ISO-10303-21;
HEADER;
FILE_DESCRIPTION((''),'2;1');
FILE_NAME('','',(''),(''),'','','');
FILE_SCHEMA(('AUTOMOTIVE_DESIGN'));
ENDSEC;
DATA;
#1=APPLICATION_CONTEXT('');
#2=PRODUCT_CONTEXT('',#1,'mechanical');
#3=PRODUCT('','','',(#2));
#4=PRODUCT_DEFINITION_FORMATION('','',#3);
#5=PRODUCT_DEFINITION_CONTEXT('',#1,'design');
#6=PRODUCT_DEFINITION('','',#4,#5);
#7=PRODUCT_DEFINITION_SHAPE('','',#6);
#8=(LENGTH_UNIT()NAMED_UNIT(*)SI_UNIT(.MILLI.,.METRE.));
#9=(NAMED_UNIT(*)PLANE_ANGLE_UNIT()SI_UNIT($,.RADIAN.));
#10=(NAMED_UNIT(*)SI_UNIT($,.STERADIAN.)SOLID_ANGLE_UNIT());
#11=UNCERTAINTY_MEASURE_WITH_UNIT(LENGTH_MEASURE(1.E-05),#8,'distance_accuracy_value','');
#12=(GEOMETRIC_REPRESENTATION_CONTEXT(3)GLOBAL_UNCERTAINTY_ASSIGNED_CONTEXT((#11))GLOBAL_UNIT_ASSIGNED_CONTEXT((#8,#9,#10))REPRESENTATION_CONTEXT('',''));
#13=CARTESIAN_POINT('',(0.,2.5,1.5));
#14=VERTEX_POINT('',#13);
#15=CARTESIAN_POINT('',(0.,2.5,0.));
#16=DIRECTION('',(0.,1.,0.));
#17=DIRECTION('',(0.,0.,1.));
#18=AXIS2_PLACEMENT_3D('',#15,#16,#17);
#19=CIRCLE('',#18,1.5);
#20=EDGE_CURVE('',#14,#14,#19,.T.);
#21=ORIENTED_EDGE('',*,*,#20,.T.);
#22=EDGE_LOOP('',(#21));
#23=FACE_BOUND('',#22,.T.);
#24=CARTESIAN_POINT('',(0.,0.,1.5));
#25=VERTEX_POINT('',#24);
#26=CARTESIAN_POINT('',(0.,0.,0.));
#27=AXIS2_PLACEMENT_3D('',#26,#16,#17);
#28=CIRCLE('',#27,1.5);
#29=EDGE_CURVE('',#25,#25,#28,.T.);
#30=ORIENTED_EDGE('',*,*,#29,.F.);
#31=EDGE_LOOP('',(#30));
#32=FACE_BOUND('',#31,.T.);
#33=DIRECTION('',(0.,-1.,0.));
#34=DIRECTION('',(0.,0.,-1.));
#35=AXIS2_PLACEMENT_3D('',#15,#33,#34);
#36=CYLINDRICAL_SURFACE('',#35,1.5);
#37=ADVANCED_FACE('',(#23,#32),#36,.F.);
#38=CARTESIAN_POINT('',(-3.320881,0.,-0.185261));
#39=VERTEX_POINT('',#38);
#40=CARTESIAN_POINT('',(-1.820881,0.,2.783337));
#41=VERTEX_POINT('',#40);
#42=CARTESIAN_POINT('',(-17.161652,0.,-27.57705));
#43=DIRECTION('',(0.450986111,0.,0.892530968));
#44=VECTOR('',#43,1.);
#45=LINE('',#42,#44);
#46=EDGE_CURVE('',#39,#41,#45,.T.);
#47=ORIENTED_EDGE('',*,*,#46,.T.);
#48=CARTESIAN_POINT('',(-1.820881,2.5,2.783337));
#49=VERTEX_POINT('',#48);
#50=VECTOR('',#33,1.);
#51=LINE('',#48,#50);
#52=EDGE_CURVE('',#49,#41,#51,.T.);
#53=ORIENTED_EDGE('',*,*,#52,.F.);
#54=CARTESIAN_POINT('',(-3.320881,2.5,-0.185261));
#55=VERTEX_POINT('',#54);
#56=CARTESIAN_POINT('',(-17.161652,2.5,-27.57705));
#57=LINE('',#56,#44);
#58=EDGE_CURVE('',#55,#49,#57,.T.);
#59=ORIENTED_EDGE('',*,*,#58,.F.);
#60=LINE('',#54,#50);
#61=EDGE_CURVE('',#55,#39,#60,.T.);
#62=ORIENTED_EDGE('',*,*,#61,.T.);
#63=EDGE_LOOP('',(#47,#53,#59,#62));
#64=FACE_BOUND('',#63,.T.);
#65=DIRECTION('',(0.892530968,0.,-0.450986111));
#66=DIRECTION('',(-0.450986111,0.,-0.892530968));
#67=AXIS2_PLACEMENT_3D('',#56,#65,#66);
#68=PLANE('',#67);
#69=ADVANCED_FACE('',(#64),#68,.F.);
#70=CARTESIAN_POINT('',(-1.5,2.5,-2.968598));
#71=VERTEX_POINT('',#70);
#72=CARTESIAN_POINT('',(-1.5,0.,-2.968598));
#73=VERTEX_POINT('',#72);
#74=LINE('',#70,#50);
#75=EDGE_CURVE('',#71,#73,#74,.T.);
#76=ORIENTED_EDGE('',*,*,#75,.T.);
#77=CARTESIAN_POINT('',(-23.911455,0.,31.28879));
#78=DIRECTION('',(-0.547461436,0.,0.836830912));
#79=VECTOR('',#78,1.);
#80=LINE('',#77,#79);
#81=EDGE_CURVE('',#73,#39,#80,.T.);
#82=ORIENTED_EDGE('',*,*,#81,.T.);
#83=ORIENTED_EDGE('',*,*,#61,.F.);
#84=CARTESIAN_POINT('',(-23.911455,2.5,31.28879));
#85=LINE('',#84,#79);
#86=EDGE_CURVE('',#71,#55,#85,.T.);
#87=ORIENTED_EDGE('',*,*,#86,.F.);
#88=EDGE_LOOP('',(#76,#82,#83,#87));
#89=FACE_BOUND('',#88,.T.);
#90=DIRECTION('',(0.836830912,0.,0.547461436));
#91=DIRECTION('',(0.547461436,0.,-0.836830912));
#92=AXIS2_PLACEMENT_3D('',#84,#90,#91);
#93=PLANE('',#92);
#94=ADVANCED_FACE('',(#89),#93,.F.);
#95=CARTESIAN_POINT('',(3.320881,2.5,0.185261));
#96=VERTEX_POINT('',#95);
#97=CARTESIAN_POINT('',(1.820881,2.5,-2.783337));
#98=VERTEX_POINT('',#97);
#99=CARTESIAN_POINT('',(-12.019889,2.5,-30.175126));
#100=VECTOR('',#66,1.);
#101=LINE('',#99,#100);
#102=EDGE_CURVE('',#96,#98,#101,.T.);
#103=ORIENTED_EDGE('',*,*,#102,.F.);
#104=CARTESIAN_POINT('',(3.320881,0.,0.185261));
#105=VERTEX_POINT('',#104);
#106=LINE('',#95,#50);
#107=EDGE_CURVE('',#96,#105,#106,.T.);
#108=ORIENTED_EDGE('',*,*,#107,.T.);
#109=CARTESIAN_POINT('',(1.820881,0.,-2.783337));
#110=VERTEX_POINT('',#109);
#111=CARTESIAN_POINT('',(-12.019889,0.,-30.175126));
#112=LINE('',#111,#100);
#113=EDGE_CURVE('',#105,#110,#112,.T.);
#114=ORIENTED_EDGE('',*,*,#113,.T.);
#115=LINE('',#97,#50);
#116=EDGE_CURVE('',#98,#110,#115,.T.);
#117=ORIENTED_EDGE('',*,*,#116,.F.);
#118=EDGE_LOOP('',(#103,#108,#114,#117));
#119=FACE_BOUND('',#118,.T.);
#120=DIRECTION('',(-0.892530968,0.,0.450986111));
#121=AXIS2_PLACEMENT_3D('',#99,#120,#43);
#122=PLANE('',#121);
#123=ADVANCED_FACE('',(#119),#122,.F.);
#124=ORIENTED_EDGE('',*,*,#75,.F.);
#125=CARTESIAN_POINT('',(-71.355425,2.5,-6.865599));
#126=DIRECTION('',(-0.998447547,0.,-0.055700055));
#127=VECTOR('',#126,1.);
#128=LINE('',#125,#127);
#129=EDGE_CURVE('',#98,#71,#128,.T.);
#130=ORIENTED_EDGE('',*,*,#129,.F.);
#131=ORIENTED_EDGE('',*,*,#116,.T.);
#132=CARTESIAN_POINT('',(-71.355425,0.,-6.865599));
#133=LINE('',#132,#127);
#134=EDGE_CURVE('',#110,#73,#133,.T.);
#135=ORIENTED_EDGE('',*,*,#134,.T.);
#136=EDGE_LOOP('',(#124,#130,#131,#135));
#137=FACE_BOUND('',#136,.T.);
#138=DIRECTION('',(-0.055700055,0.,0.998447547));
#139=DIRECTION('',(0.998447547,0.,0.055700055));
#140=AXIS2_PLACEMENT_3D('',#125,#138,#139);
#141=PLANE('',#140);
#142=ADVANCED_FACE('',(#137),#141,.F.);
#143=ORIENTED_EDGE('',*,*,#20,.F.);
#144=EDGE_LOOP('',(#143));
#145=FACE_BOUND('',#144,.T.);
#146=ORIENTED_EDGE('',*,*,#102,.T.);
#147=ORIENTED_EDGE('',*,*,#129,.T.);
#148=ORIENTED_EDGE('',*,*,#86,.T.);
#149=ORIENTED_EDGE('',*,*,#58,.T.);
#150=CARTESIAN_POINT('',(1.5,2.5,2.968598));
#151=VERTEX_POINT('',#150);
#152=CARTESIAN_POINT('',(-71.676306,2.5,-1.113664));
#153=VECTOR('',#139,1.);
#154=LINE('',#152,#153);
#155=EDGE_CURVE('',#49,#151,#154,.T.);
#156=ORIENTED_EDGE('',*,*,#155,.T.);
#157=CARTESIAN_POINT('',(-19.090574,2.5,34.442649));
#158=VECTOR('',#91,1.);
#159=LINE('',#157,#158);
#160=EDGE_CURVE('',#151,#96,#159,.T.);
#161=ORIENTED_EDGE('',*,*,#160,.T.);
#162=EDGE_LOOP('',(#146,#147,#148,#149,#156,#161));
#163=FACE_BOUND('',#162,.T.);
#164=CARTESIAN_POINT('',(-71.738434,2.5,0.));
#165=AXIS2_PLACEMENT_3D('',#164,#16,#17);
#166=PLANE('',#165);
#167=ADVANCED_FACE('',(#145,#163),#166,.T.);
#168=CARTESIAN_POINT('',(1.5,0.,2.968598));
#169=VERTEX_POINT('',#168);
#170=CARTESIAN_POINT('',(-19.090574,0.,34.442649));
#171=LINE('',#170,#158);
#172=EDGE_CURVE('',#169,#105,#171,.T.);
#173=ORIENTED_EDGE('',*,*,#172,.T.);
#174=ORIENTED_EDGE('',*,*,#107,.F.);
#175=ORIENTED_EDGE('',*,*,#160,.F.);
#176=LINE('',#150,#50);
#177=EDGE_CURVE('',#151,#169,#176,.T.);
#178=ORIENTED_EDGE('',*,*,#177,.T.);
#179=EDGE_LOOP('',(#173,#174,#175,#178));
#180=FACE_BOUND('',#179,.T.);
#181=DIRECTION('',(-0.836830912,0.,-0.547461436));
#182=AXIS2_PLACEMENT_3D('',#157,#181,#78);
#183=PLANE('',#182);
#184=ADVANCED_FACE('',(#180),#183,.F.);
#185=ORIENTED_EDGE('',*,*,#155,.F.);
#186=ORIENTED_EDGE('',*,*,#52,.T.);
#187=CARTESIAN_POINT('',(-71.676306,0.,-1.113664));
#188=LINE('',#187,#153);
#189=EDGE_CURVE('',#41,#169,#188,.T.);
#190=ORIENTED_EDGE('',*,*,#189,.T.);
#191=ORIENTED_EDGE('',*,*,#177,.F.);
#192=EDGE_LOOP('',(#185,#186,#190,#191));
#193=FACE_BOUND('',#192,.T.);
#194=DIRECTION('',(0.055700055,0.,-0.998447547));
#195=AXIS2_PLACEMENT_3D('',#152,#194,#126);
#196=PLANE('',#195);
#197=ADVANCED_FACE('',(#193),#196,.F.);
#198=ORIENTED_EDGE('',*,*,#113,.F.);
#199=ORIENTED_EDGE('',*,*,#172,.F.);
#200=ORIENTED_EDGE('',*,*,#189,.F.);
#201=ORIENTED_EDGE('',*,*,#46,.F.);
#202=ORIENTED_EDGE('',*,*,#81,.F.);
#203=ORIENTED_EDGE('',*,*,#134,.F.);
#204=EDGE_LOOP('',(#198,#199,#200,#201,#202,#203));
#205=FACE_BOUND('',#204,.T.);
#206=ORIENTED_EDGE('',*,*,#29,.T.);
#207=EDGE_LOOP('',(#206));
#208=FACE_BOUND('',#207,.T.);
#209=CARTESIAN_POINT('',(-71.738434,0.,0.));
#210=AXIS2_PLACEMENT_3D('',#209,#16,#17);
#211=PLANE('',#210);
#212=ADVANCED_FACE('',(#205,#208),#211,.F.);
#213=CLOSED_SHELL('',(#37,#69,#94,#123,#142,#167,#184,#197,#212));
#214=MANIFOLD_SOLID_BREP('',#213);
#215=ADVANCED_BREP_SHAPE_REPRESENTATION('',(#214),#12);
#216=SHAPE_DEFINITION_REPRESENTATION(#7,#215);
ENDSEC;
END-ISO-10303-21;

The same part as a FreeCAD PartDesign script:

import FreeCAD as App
import Part
import Sketcher
Q = App.Units.Quantity

doc = App.newDocument("Part")
body = doc.addObject("PartDesign::Body", "Body")

# Sketch on XZ plane
sketch1 = body.newObject("Sketcher::SketchObject", "Sketch")
sketch1.AttachmentSupport = (doc.getObject("XZ_Plane"), [""])
sketch1.MapMode = "FlatFace"
sketch1.addGeometry([
    Part.LineSegment(App.Vector(-3.3, -0.2, 0), App.Vector(-1.8, 2.8, 0)),  # 0
    Part.LineSegment(App.Vector(-1.8, 2.8, 0), App.Vector(1.5, 3, 0)),  # 1
    Part.LineSegment(App.Vector(1.5, 3, 0), App.Vector(3.3, 0.2, 0)),  # 2
    Part.LineSegment(App.Vector(3.3, 0.2, 0), App.Vector(1.8, -2.8, 0)),  # 3
    Part.LineSegment(App.Vector(1.8, -2.8, 0), App.Vector(-1.5, -3, 0)),  # 4
    Part.LineSegment(App.Vector(-1.5, -3, 0), App.Vector(-3.3, -0.2, 0)),  # 5
    Part.Circle(App.Vector(0, 0, 0), App.Vector(0, 0, 1), 1.5),  # 6
], False)
sketch1.addConstraint([
    Sketcher.Constraint("Coincident", 0, 2, 1, 1),
    Sketcher.Constraint("Coincident", 1, 2, 2, 1),
    Sketcher.Constraint("Coincident", 2, 2, 3, 1),
    Sketcher.Constraint("Coincident", 3, 2, 4, 1),
    Sketcher.Constraint("Coincident", 4, 2, 5, 1),
    Sketcher.Constraint("Coincident", 5, 2, 0, 1),
    Sketcher.Constraint("Coincident", 6, 3, -1, 1),
    Sketcher.Constraint("Symmetric", 0, 2, 3, 2, -1, 1),
    Sketcher.Constraint("Symmetric", 1, 2, 4, 2, -1, 1),
    Sketcher.Constraint("Symmetric", 2, 2, 5, 2, -1, 1),
    Sketcher.Constraint("Equal", 0, 1),
    Sketcher.Constraint("Equal", 1, 2),
    Sketcher.Constraint("Diameter", 6, Q("3 mm")),
    Sketcher.Constraint("DistanceX", 4, 2, 1, 2, Q("3 mm")),
    Sketcher.Constraint("DistanceX", 3, 2, 2, 2, Q("1.5 mm")),
    Sketcher.Constraint("DistanceX", 0, 2, -1, 1, Q("1.820881 mm")),
    Sketcher.Constraint("DistanceY", -1, 1, 2, 2, Q("0.185261 mm")),
])
pad1 = body.newObject("PartDesign::Pad", "Pad")
pad1.Profile = sketch1
pad1.Length = 2.5
pad1.Reversed = True

doc.recompute()
